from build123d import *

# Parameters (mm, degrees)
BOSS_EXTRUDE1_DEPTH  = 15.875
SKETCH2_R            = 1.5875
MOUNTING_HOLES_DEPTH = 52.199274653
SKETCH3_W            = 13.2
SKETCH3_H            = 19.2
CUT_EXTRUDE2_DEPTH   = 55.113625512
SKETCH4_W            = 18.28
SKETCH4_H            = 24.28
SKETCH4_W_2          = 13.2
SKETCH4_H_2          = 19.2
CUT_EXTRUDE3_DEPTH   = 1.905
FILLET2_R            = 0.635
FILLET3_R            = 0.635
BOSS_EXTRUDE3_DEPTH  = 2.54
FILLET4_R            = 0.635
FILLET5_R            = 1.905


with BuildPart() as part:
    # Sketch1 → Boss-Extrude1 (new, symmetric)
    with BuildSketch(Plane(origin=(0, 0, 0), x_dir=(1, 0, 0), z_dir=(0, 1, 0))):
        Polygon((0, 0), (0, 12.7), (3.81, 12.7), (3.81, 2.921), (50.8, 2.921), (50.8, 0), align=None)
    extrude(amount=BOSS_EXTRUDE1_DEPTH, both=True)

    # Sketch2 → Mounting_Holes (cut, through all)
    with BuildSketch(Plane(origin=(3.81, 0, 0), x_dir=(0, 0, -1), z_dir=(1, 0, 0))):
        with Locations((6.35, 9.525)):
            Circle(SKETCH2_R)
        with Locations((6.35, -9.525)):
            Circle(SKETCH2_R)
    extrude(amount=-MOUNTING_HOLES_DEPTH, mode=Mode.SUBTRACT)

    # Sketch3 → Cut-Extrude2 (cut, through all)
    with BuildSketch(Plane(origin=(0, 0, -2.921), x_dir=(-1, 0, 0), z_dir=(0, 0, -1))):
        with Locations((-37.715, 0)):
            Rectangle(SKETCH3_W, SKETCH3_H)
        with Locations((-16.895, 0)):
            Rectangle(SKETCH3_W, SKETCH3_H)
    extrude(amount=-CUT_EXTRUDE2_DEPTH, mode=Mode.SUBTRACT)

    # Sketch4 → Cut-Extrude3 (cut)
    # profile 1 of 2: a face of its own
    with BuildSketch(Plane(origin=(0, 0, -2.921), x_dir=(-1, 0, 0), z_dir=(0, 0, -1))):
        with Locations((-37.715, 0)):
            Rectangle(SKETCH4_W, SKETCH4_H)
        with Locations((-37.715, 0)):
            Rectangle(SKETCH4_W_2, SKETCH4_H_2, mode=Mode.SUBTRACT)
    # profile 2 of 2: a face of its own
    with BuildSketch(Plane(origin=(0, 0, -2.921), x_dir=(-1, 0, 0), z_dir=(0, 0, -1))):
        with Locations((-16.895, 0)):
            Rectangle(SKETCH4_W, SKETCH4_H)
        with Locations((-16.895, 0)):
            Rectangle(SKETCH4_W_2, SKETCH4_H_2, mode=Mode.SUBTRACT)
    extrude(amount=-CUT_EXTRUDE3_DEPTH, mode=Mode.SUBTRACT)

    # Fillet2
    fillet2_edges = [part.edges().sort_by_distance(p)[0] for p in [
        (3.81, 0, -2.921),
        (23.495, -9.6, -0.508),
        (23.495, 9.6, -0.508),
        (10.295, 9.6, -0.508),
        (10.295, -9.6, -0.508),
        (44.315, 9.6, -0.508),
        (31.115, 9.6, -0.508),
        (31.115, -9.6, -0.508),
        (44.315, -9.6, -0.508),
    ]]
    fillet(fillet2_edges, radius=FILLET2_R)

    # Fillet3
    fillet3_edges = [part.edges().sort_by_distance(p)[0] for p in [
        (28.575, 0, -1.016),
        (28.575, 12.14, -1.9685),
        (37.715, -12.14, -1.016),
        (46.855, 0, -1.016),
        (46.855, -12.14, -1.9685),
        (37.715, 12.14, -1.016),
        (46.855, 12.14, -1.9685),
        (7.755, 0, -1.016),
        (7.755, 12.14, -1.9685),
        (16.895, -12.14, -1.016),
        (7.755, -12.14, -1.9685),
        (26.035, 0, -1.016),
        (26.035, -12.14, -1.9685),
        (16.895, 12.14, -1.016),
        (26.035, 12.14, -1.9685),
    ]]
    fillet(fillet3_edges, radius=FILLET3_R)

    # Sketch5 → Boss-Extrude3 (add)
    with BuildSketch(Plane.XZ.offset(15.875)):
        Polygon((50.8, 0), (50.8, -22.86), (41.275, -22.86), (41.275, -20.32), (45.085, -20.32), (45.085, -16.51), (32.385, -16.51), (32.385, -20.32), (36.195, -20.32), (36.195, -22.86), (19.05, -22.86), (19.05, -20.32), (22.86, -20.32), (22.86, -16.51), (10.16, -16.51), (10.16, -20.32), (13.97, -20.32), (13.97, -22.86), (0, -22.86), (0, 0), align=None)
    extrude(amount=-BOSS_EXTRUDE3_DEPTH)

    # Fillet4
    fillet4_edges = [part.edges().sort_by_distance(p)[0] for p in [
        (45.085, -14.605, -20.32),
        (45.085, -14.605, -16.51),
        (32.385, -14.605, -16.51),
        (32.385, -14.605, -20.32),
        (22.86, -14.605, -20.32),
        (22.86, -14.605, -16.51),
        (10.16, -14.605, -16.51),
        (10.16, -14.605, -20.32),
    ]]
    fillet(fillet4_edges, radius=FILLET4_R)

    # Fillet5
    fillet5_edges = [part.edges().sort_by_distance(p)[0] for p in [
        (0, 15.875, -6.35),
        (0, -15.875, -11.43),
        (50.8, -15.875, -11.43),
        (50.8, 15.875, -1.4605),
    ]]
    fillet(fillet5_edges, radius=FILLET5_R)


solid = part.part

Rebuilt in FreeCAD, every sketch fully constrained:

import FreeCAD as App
import Part
import Sketcher
Q = App.Units.Quantity


def edges_at(feature, points):
    """Names of the edges that pass closest to the given points."""
    edges = feature.Shape.Edges
    near = lambda p: min(range(len(edges)), key=lambda i: edges[i].distToShape(Part.Vertex(*p))[0])
    return sorted({f"Edge{near(p) + 1}" for p in points})

doc = App.newDocument("Part")
body = doc.addObject("PartDesign::Body", "Body")

# Sketch on XZ plane
sketch1 = body.newObject("Sketcher::SketchObject", "Sketch")
sketch1.AttachmentSupport = (doc.getObject("XZ_Plane"), [""])
sketch1.MapMode = "FlatFace"
sketch1.addGeometry(Part.LineSegment(App.Vector(0, -12.7, 0), App.Vector(0, 0, 0)), False)
sketch1.addGeometry(Part.LineSegment(App.Vector(0, 0, 0), App.Vector(50.8, 0, 0)), False)
sketch1.addGeometry(Part.LineSegment(App.Vector(50.8, 0, 0), App.Vector(50.8, -2.9, 0)), False)
sketch1.addGeometry(Part.LineSegment(App.Vector(50.8, -2.9, 0), App.Vector(3.8, -2.9, 0)), False)
sketch1.addGeometry(Part.LineSegment(App.Vector(3.8, -2.9, 0), App.Vector(3.8, -12.7, 0)), False)
sketch1.addGeometry(Part.LineSegment(App.Vector(3.8, -12.7, 0), App.Vector(0, -12.7, 0)), False)
sketch1.addConstraint(Sketcher.Constraint("Coincident", 0, 2, 1, 1))
sketch1.addConstraint(Sketcher.Constraint("Coincident", 1, 2, 2, 1))
sketch1.addConstraint(Sketcher.Constraint("Coincident", 2, 2, 3, 1))
sketch1.addConstraint(Sketcher.Constraint("Coincident", 3, 2, 4, 1))
sketch1.addConstraint(Sketcher.Constraint("Coincident", 4, 2, 5, 1))
sketch1.addConstraint(Sketcher.Constraint("Coincident", 5, 2, 0, 1))
sketch1.addConstraint(Sketcher.Constraint("Vertical", 0))
sketch1.addConstraint(Sketcher.Constraint("Horizontal", 1))
sketch1.addConstraint(Sketcher.Constraint("Vertical", 2))
sketch1.addConstraint(Sketcher.Constraint("Horizontal", 3))
sketch1.addConstraint(Sketcher.Constraint("Vertical", 4))
sketch1.addConstraint(Sketcher.Constraint("Horizontal", 5))
sketch1.addConstraint(Sketcher.Constraint("Coincident", 0, 2, -1, 1))
sketch1.addConstraint(Sketcher.Constraint("DistanceX", 1, 1, 1, 2, Q("2 in")))
sketch1.addConstraint(Sketcher.Constraint("DistanceY", 0, 1, 0, 2, Q("0.5 in")))
sketch1.addConstraint(Sketcher.Constraint("DistanceX", 3, 2, 3, 1, Q("1.85 in")))
sketch1.addConstraint(Sketcher.Constraint("DistanceY", 2, 2, 2, 1, Q("0.115 in")))
pad1 = body.newObject("PartDesign::Pad", "Pad")
pad1.Profile = sketch1
pad1.Length = Q("1.25 in")
pad1.Midplane = True

# Sketch on YZ plane
sketch2 = body.newObject("Sketcher::SketchObject", "Sketch001")
sketch2.AttachmentSupport = (doc.getObject("YZ_Plane"), [""])
sketch2.MapMode = "FlatFace"
sketch2.AttachmentOffset = App.Placement(App.Vector(0, 0, 0.15 * 25.4), App.Rotation())
sketch2.addGeometry(Part.Circle(App.Vector(9.5, -6.3, 0), App.Vector(0, 0, 1), 1.6), False)
sketch2.addGeometry(Part.Circle(App.Vector(-9.5, -6.3, 0), App.Vector(0, 0, 1), 1.6), False)
sketch2.addConstraint(Sketcher.Constraint("Equal", 0, 1))
sketch2.addConstraint(Sketcher.Constraint("Symmetric", 0, 3, 1, 3, -2))
sketch2.addConstraint(Sketcher.Constraint("Diameter", 0, Q("0.125 in")))
sketch2.addConstraint(Sketcher.Constraint("DistanceY", 0, 3, -1, 1, Q("0.25 in")))
sketch2.addConstraint(Sketcher.Constraint("DistanceX", 1, 3, 0, 3, Q("0.75 in")))
pocket1 = body.newObject("PartDesign::Pocket", "Pocket")
pocket1.Profile = sketch2
pocket1.Type = "ThroughAll"

# Sketch on XY plane
sketch3 = body.newObject("Sketcher::SketchObject", "Sketch002")
sketch3.AttachmentSupport = (doc.getObject("XY_Plane"), [""])
sketch3.MapMode = "FlatFace"
sketch3.AttachmentOffset = App.Placement(App.Vector(0, 0, -0.115 * 25.4), App.Rotation())
sketch3.addGeometry(Part.LineSegment(App.Vector(44, 10, 0), App.Vector(44, -10, 0)), False)
sketch3.addGeometry(Part.LineSegment(App.Vector(44, -10, 0), App.Vector(31, -10, 0)), False)
sketch3.addGeometry(Part.LineSegment(App.Vector(31, -10, 0), App.Vector(31, 10, 0)), False)
sketch3.addGeometry(Part.LineSegment(App.Vector(31, 10, 0), App.Vector(44, 10, 0)), False)
sketch3.addGeometry(Part.LineSegment(App.Vector(23, 10, 0), App.Vector(23, -10, 0)), False)
sketch3.addGeometry(Part.LineSegment(App.Vector(23, -10, 0), App.Vector(10, -10, 0)), False)
sketch3.addGeometry(Part.LineSegment(App.Vector(10, -10, 0), App.Vector(10, 10, 0)), False)
sketch3.addGeometry(Part.LineSegment(App.Vector(10, 10, 0), App.Vector(23, 10, 0)), False)
sketch3.addConstraint(Sketcher.Constraint("Coincident", 0, 2, 1, 1))
sketch3.addConstraint(Sketcher.Constraint("Coincident", 1, 2, 2, 1))
sketch3.addConstraint(Sketcher.Constraint("Coincident", 2, 2, 3, 1))
sketch3.addConstraint(Sketcher.Constraint("Coincident", 3, 2, 0, 1))
sketch3.addConstraint(Sketcher.Constraint("Coincident", 4, 2, 5, 1))
sketch3.addConstraint(Sketcher.Constraint("Coincident", 5, 2, 6, 1))
sketch3.addConstraint(Sketcher.Constraint("Coincident", 6, 2, 7, 1))
sketch3.addConstraint(Sketcher.Constraint("Coincident", 7, 2, 4, 1))
sketch3.addConstraint(Sketcher.Constraint("Vertical", 0))
sketch3.addConstraint(Sketcher.Constraint("Horizontal", 1))
sketch3.addConstraint(Sketcher.Constraint("Vertical", 2))
sketch3.addConstraint(Sketcher.Constraint("Horizontal", 3))
sketch3.addConstraint(Sketcher.Constraint("Vertical", 4))
sketch3.addConstraint(Sketcher.Constraint("Horizontal", 5))
sketch3.addConstraint(Sketcher.Constraint("Vertical", 6))
sketch3.addConstraint(Sketcher.Constraint("Horizontal", 7))
sketch3.addConstraint(Sketcher.Constraint("Horizontal", 1, 2, 4, 2))
sketch3.addConstraint(Sketcher.Constraint("Horizontal", 3, 2, 6, 2))
sketch3.addConstraint(Sketcher.Constraint("Equal", 3, 5))
sketch3.addConstraint(Sketcher.Constraint("DistanceX", 4, 2, 1, 2, Q("0.3 in")))
sketch3.addConstraint(Sketcher.Constraint("DistanceX", -1, 1, 1, 2, Q("1.225 in")))
sketch3.addConstraint(Sketcher.Constraint("DistanceX", 1, 2, 1, 1, Q("13.2 mm")))
sketch3.addConstraint(Sketcher.Constraint("DistanceY", 0, 2, 0, 1, Q("19.2 mm")))
sketch3.addConstraint(Sketcher.Constraint("DistanceY", 0, 2, -1, 1, Q("9.6 mm")))
pocket2 = body.newObject("PartDesign::Pocket", "Pocket001")
pocket2.Profile = sketch3
pocket2.Type = "ThroughAll"
pocket2.Reversed = True

# Sketch on XY plane
sketch4 = body.newObject("Sketcher::SketchObject", "Sketch003")
sketch4.AttachmentSupport = (doc.getObject("XY_Plane"), [""])
sketch4.MapMode = "FlatFace"
sketch4.AttachmentOffset = App.Placement(App.Vector(0, 0, -0.115 * 25.4), App.Rotation())
sketch4.addGeometry(Part.LineSegment(App.Vector(47, 12, 0), App.Vector(47, -12, 0)), False)
sketch4.addGeometry(Part.LineSegment(App.Vector(47, -12, 0), App.Vector(29, -12, 0)), False)
sketch4.addGeometry(Part.LineSegment(App.Vector(29, -12, 0), App.Vector(29, 12, 0)), False)
sketch4.addGeometry(Part.LineSegment(App.Vector(29, 12, 0), App.Vector(47, 12, 0)), False)
sketch4.addGeometry(Part.LineSegment(App.Vector(31, -10, 0), App.Vector(44, -10, 0)), False)
sketch4.addGeometry(Part.LineSegment(App.Vector(44, -10, 0), App.Vector(44, 10, 0)), False)
sketch4.addGeometry(Part.LineSegment(App.Vector(44, 10, 0), App.Vector(31, 10, 0)), False)
sketch4.addGeometry(Part.LineSegment(App.Vector(31, 10, 0), App.Vector(31, -10, 0)), False)
sketch4.addGeometry(Part.LineSegment(App.Vector(26, 12, 0), App.Vector(26, -12, 0)), False)
sketch4.addGeometry(Part.LineSegment(App.Vector(26, -12, 0), App.Vector(8, -12, 0)), False)
sketch4.addGeometry(Part.LineSegment(App.Vector(8, -12, 0), App.Vector(8, 12, 0)), False)
sketch4.addGeometry(Part.LineSegment(App.Vector(8, 12, 0), App.Vector(26, 12, 0)), False)
sketch4.addGeometry(Part.LineSegment(App.Vector(10, -10, 0), App.Vector(23, -10, 0)), False)
sketch4.addGeometry(Part.LineSegment(App.Vector(23, -10, 0), App.Vector(23, 10, 0)), False)
sketch4.addGeometry(Part.LineSegment(App.Vector(23, 10, 0), App.Vector(10, 10, 0)), False)
sketch4.addGeometry(Part.LineSegment(App.Vector(10, 10, 0), App.Vector(10, -10, 0)), False)
sketch4.addConstraint(Sketcher.Constraint("Coincident", 0, 2, 1, 1))
sketch4.addConstraint(Sketcher.Constraint("Coincident", 1, 2, 2, 1))
sketch4.addConstraint(Sketcher.Constraint("Coincident", 2, 2, 3, 1))
sketch4.addConstraint(Sketcher.Constraint("Coincident", 3, 2, 0, 1))
sketch4.addConstraint(Sketcher.Constraint("Coincident", 4, 2, 5, 1))
sketch4.addConstraint(Sketcher.Constraint("Coincident", 5, 2, 6, 1))
sketch4.addConstraint(Sketcher.Constraint("Coincident", 6, 2, 7, 1))
sketch4.addConstraint(Sketcher.Constraint("Coincident", 7, 2, 4, 1))
sketch4.addConstraint(Sketcher.Constraint("Coincident", 8, 2, 9, 1))
sketch4.addConstraint(Sketcher.Constraint("Coincident", 9, 2, 10, 1))
sketch4.addConstraint(Sketcher.Constraint("Coincident", 10, 2, 11, 1))
sketch4.addConstraint(Sketcher.Constraint("Coincident", 11, 2, 8, 1))
sketch4.addConstraint(Sketcher.Constraint("Coincident", 12, 2, 13, 1))
sketch4.addConstraint(Sketcher.Constraint("Coincident", 13, 2, 14, 1))
sketch4.addConstraint(Sketcher.Constraint("Coincident", 14, 2, 15, 1))
sketch4.addConstraint(Sketcher.Constraint("Coincident", 15, 2, 12, 1))
sketch4.addConstraint(Sketcher.Constraint("Vertical", 0))
sketch4.addConstraint(Sketcher.Constraint("Horizontal", 1))
sketch4.addConstraint(Sketcher.Constraint("Vertical", 2))
sketch4.addConstraint(Sketcher.Constraint("Horizontal", 3))
sketch4.addConstraint(Sketcher.Constraint("Horizontal", 4))
sketch4.addConstraint(Sketcher.Constraint("Vertical", 5))
sketch4.addConstraint(Sketcher.Constraint("Horizontal", 6))
sketch4.addConstraint(Sketcher.Constraint("Vertical", 7))
sketch4.addConstraint(Sketcher.Constraint("Vertical", 8))
sketch4.addConstraint(Sketcher.Constraint("Horizontal", 9))
sketch4.addConstraint(Sketcher.Constraint("Vertical", 10))
sketch4.addConstraint(Sketcher.Constraint("Horizontal", 11))
sketch4.addConstraint(Sketcher.Constraint("Horizontal", 12))
sketch4.addConstraint(Sketcher.Constraint("Vertical", 13))
sketch4.addConstraint(Sketcher.Constraint("Horizontal", 14))
sketch4.addConstraint(Sketcher.Constraint("Vertical", 15))
sketch4.addConstraint(Sketcher.Constraint("Horizontal", 1, 2, 8, 2))
sketch4.addConstraint(Sketcher.Constraint("Horizontal", 3, 2, 10, 2))
sketch4.addConstraint(Sketcher.Constraint("Horizontal", 7, 2, 12, 2))
sketch4.addConstraint(Sketcher.Constraint("Horizontal", 6, 2, 13, 2))
sketch4.addConstraint(Sketcher.Constraint("Equal", 3, 9))
sketch4.addConstraint(Sketcher.Constraint("Equal", 6, 12))
sketch4.addConstraint(Sketcher.Constraint("DistanceX", 4, 2, 0, 2, Q("0.1 in")))
sketch4.addConstraint(Sketcher.Constraint("DistanceY", 0, 2, 4, 2, Q("0.1 in")))
sketch4.addConstraint(Sketcher.Constraint("DistanceY", 5, 2, 3, 2, Q("0.1 in")))
sketch4.addConstraint(Sketcher.Constraint("DistanceX", 2, 2, 6, 2, Q("0.1 in")))
sketch4.addConstraint(Sketcher.Constraint("DistanceX", 8, 2, 1, 2, Q("0.1 in")))
sketch4.addConstraint(Sketcher.Constraint("DistanceX", 12, 2, 8, 2, Q("0.1 in")))
sketch4.addConstraint(Sketcher.Constraint("DistanceX", -1, 1, 1, 2, Q("1.125 in")))
sketch4.addConstraint(Sketcher.Constraint("DistanceX", 1, 2, 1, 1, Q("18.28 mm")))
sketch4.addConstraint(Sketcher.Constraint("DistanceY", 0, 2, 0, 1, Q("24.28 mm")))
sketch4.addConstraint(Sketcher.Constraint("DistanceY", 0, 2, -1, 1, Q("12.14 mm")))
pocket3 = body.newObject("PartDesign::Pocket", "Pocket002")
pocket3.Profile = sketch4
pocket3.Length = Q("0.075 in")
pocket3.Reversed = True
doc.recompute()

fillet = body.newObject("PartDesign::Fillet", "Fillet")
fillet.Base = (pocket3, edges_at(pocket3, [
    (3.81, 0, -2.921),
    (23.495, -9.6, -0.508),
    (23.495, 9.6, -0.508),
    (10.295, 9.6, -0.508),
    (10.295, -9.6, -0.508),
    (44.315, 9.6, -0.508),
    (31.115, 9.6, -0.508),
    (31.115, -9.6, -0.508),
    (44.315, -9.6, -0.508),
]))
fillet.Radius = Q("0.025 in")
doc.recompute()

fillet2 = body.newObject("PartDesign::Fillet", "Fillet001")
fillet2.Base = (fillet, edges_at(fillet, [
    (28.575, 0, -1.016),
    (28.575, 12.14, -1.968),
    (37.715, -12.14, -1.016),
    (46.855, 0, -1.016),
    (46.855, -12.14, -1.968),
    (37.715, 12.14, -1.016),
    (46.855, 12.14, -1.968),
    (7.755, 0, -1.016),
    (7.755, 12.14, -1.968),
    (16.895, -12.14, -1.016),
    (7.755, -12.14, -1.968),
    (26.035, 0, -1.016),
    (26.035, -12.14, -1.968),
    (16.895, 12.14, -1.016),
    (26.035, 12.14, -1.968),
]))
fillet2.Radius = Q("0.025 in")

# Sketch on XZ plane
sketch5 = body.newObject("Sketcher::SketchObject", "Sketch004")
sketch5.AttachmentSupport = (doc.getObject("XZ_Plane"), [""])
sketch5.MapMode = "FlatFace"
sketch5.AttachmentOffset = App.Placement(App.Vector(0, 0, 0.625 * 25.4), App.Rotation())
sketch5.addGeometry(Part.LineSegment(App.Vector(50.8, -22.9, 0), App.Vector(50.8, 0, 0)), False)
sketch5.addGeometry(Part.LineSegment(App.Vector(50.8, 0, 0), App.Vector(0, 0, 0)), False)
sketch5.addGeometry(Part.LineSegment(App.Vector(0, 0, 0), App.Vector(0, -22.9, 0)), False)
sketch5.addGeometry(Part.LineSegment(App.Vector(0, -22.9, 0), App.Vector(14, -22.9, 0)), False)
sketch5.addGeometry(Part.LineSegment(App.Vector(14, -22.9, 0), App.Vector(14, -20.3, 0)), False)
sketch5.addGeometry(Part.LineSegment(App.Vector(14, -20.3, 0), App.Vector(10.2, -20.3, 0)), False)
sketch5.addGeometry(Part.LineSegment(App.Vector(10.2, -20.3, 0), App.Vector(10.2, -16.5, 0)), False)
sketch5.addGeometry(Part.LineSegment(App.Vector(10.2, -16.5, 0), App.Vector(22.9, -16.5, 0)), False)
sketch5.addGeometry(Part.LineSegment(App.Vector(22.9, -16.5, 0), App.Vector(22.9, -20.3, 0)), False)
sketch5.addGeometry(Part.LineSegment(App.Vector(22.9, -20.3, 0), App.Vector(19.1, -20.3, 0)), False)
sketch5.addGeometry(Part.LineSegment(App.Vector(19.1, -20.3, 0), App.Vector(19.1, -22.9, 0)), False)
sketch5.addGeometry(Part.LineSegment(App.Vector(19.1, -22.9, 0), App.Vector(36.2, -22.9, 0)), False)
sketch5.addGeometry(Part.LineSegment(App.Vector(36.2, -22.9, 0), App.Vector(36.2, -20.3, 0)), False)
sketch5.addGeometry(Part.LineSegment(App.Vector(36.2, -20.3, 0), App.Vector(32.4, -20.3, 0)), False)
sketch5.addGeometry(Part.LineSegment(App.Vector(32.4, -20.3, 0), App.Vector(32.4, -16.5, 0)), False)
sketch5.addGeometry(Part.LineSegment(App.Vector(32.4, -16.5, 0), App.Vector(45.1, -16.5, 0)), False)
sketch5.addGeometry(Part.LineSegment(App.Vector(45.1, -16.5, 0), App.Vector(45.1, -20.3, 0)), False)
sketch5.addGeometry(Part.LineSegment(App.Vector(45.1, -20.3, 0), App.Vector(41.3, -20.3, 0)), False)
sketch5.addGeometry(Part.LineSegment(App.Vector(41.3, -20.3, 0), App.Vector(41.3, -22.9, 0)), False)
sketch5.addGeometry(Part.LineSegment(App.Vector(41.3, -22.9, 0), App.Vector(50.8, -22.9, 0)), False)
sketch5.addConstraint(Sketcher.Constraint("Coincident", 0, 2, 1, 1))
sketch5.addConstraint(Sketcher.Constraint("Coincident", 1, 2, 2, 1))
sketch5.addConstraint(Sketcher.Constraint("Coincident", 2, 2, 3, 1))
sketch5.addConstraint(Sketcher.Constraint("Coincident", 3, 2, 4, 1))
sketch5.addConstraint(Sketcher.Constraint("Coincident", 4, 2, 5, 1))
sketch5.addConstraint(Sketcher.Constraint("Coincident", 5, 2, 6, 1))
sketch5.addConstraint(Sketcher.Constraint("Coincident", 6, 2, 7, 1))
sketch5.addConstraint(Sketcher.Constraint("Coincident", 7, 2, 8, 1))
sketch5.addConstraint(Sketcher.Constraint("Coincident", 8, 2, 9, 1))
sketch5.addConstraint(Sketcher.Constraint("Coincident", 9, 2, 10, 1))
sketch5.addConstraint(Sketcher.Constraint("Coincident", 10, 2, 11, 1))
sketch5.addConstraint(Sketcher.Constraint("Coincident", 11, 2, 12, 1))
sketch5.addConstraint(Sketcher.Constraint("Coincident", 12, 2, 13, 1))
sketch5.addConstraint(Sketcher.Constraint("Coincident", 13, 2, 14, 1))
sketch5.addConstraint(Sketcher.Constraint("Coincident", 14, 2, 15, 1))
sketch5.addConstraint(Sketcher.Constraint("Coincident", 15, 2, 16, 1))
sketch5.addConstraint(Sketcher.Constraint("Coincident", 16, 2, 17, 1))
sketch5.addConstraint(Sketcher.Constraint("Coincident", 17, 2, 18, 1))
sketch5.addConstraint(Sketcher.Constraint("Coincident", 18, 2, 19, 1))
sketch5.addConstraint(Sketcher.Constraint("Coincident", 19, 2, 0, 1))
sketch5.addConstraint(Sketcher.Constraint("Vertical", 0))
sketch5.addConstraint(Sketcher.Constraint("Horizontal", 1))
sketch5.addConstraint(Sketcher.Constraint("Vertical", 2))
sketch5.addConstraint(Sketcher.Constraint("Horizontal", 3))
sketch5.addConstraint(Sketcher.Constraint("Vertical", 4))
sketch5.addConstraint(Sketcher.Constraint("Horizontal", 5))
sketch5.addConstraint(Sketcher.Constraint("Vertical", 6))
sketch5.addConstraint(Sketcher.Constraint("Horizontal", 7))
sketch5.addConstraint(Sketcher.Constraint("Vertical", 8))
sketch5.addConstraint(Sketcher.Constraint("Horizontal", 9))
sketch5.addConstraint(Sketcher.Constraint("Vertical", 10))
sketch5.addConstraint(Sketcher.Constraint("Horizontal", 11))
sketch5.addConstraint(Sketcher.Constraint("Vertical", 12))
sketch5.addConstraint(Sketcher.Constraint("Horizontal", 13))
sketch5.addConstraint(Sketcher.Constraint("Vertical", 14))
sketch5.addConstraint(Sketcher.Constraint("Horizontal", 15))
sketch5.addConstraint(Sketcher.Constraint("Vertical", 16))
sketch5.addConstraint(Sketcher.Constraint("Horizontal", 17))
sketch5.addConstraint(Sketcher.Constraint("Vertical", 18))
sketch5.addConstraint(Sketcher.Constraint("Horizontal", 19))
sketch5.addConstraint(Sketcher.Constraint("Coincident", 1, 2, -1, 1))
sketch5.addConstraint(Sketcher.Constraint("Horizontal", 5, 2, 8, 2))
sketch5.addConstraint(Sketcher.Constraint("Horizontal", 3, 2, 10, 2))
sketch5.addConstraint(Sketcher.Constraint("Horizontal", 9, 2, 12, 2))
sketch5.addConstraint(Sketcher.Constraint("Horizontal", 7, 2, 14, 2))
sketch5.addConstraint(Sketcher.Constraint("Horizontal", 13, 2, 16, 2))
sketch5.addConstraint(Sketcher.Constraint("Horizontal", 11, 2, 18, 2))
sketch5.addConstraint(Sketcher.Constraint("Equal", 5, 9))
sketch5.addConstraint(Sketcher.Constraint("Equal", 9, 13))
sketch5.addConstraint(Sketcher.Constraint("Equal", 7, 15))
sketch5.addConstraint(Sketcher.Constraint("Equal", 13, 17))
sketch5.addConstraint(Sketcher.Constraint("Equal", 17, 6))
sketch5.addConstraint(Sketcher.Constraint("DistanceX", 1, 2, 1, 1, Q("2 in")))
sketch5.addConstraint(Sketcher.Constraint("DistanceX", 7, 1, 7, 2, Q("0.5 in")))
sketch5.addConstraint(Sketcher.Constraint("DistanceY", 0, 1, 0, 2, Q("0.9 in")))
sketch5.addConstraint(Sketcher.Constraint("DistanceY", 4, 1, 4, 2, Q("0.1 in")))
sketch5.addConstraint(Sketcher.Constraint("DistanceX", 3, 1, 3, 2, Q("0.55 in")))
sketch5.addConstraint(Sketcher.Constraint("DistanceX", 5, 2, 5, 1, Q("0.15 in")))
sketch5.addConstraint(Sketcher.Constraint("DistanceX", 11, 1, 11, 2, Q("0.675 in")))
pad2 = body.newObject("PartDesign::Pad", "Pad001")
pad2.Profile = sketch5
pad2.Length = Q("0.1 in")
pad2.Reversed = True
doc.recompute()

fillet3 = body.newObject("PartDesign::Fillet", "Fillet002")
fillet3.Base = (pad2, edges_at(pad2, [
    (45.085, -14.605, -20.32),
    (45.085, -14.605, -16.51),
    (32.385, -14.605, -16.51),
    (32.385, -14.605, -20.32),
    (22.86, -14.605, -20.32),
    (22.86, -14.605, -16.51),
    (10.16, -14.605, -16.51),
    (10.16, -14.605, -20.32),
]))
fillet3.Radius = Q("0.025 in")
doc.recompute()

fillet4 = body.newObject("PartDesign::Fillet", "Fillet003")
fillet4.Base = (fillet3, edges_at(fillet3, [
    (0, 15.875, -6.35),
    (0, -15.875, -11.43),
    (50.8, -15.875, -11.43),
    (50.8, 15.875, -1.46),
]))
fillet4.Radius = Q("0.075 in")

doc.recompute()
